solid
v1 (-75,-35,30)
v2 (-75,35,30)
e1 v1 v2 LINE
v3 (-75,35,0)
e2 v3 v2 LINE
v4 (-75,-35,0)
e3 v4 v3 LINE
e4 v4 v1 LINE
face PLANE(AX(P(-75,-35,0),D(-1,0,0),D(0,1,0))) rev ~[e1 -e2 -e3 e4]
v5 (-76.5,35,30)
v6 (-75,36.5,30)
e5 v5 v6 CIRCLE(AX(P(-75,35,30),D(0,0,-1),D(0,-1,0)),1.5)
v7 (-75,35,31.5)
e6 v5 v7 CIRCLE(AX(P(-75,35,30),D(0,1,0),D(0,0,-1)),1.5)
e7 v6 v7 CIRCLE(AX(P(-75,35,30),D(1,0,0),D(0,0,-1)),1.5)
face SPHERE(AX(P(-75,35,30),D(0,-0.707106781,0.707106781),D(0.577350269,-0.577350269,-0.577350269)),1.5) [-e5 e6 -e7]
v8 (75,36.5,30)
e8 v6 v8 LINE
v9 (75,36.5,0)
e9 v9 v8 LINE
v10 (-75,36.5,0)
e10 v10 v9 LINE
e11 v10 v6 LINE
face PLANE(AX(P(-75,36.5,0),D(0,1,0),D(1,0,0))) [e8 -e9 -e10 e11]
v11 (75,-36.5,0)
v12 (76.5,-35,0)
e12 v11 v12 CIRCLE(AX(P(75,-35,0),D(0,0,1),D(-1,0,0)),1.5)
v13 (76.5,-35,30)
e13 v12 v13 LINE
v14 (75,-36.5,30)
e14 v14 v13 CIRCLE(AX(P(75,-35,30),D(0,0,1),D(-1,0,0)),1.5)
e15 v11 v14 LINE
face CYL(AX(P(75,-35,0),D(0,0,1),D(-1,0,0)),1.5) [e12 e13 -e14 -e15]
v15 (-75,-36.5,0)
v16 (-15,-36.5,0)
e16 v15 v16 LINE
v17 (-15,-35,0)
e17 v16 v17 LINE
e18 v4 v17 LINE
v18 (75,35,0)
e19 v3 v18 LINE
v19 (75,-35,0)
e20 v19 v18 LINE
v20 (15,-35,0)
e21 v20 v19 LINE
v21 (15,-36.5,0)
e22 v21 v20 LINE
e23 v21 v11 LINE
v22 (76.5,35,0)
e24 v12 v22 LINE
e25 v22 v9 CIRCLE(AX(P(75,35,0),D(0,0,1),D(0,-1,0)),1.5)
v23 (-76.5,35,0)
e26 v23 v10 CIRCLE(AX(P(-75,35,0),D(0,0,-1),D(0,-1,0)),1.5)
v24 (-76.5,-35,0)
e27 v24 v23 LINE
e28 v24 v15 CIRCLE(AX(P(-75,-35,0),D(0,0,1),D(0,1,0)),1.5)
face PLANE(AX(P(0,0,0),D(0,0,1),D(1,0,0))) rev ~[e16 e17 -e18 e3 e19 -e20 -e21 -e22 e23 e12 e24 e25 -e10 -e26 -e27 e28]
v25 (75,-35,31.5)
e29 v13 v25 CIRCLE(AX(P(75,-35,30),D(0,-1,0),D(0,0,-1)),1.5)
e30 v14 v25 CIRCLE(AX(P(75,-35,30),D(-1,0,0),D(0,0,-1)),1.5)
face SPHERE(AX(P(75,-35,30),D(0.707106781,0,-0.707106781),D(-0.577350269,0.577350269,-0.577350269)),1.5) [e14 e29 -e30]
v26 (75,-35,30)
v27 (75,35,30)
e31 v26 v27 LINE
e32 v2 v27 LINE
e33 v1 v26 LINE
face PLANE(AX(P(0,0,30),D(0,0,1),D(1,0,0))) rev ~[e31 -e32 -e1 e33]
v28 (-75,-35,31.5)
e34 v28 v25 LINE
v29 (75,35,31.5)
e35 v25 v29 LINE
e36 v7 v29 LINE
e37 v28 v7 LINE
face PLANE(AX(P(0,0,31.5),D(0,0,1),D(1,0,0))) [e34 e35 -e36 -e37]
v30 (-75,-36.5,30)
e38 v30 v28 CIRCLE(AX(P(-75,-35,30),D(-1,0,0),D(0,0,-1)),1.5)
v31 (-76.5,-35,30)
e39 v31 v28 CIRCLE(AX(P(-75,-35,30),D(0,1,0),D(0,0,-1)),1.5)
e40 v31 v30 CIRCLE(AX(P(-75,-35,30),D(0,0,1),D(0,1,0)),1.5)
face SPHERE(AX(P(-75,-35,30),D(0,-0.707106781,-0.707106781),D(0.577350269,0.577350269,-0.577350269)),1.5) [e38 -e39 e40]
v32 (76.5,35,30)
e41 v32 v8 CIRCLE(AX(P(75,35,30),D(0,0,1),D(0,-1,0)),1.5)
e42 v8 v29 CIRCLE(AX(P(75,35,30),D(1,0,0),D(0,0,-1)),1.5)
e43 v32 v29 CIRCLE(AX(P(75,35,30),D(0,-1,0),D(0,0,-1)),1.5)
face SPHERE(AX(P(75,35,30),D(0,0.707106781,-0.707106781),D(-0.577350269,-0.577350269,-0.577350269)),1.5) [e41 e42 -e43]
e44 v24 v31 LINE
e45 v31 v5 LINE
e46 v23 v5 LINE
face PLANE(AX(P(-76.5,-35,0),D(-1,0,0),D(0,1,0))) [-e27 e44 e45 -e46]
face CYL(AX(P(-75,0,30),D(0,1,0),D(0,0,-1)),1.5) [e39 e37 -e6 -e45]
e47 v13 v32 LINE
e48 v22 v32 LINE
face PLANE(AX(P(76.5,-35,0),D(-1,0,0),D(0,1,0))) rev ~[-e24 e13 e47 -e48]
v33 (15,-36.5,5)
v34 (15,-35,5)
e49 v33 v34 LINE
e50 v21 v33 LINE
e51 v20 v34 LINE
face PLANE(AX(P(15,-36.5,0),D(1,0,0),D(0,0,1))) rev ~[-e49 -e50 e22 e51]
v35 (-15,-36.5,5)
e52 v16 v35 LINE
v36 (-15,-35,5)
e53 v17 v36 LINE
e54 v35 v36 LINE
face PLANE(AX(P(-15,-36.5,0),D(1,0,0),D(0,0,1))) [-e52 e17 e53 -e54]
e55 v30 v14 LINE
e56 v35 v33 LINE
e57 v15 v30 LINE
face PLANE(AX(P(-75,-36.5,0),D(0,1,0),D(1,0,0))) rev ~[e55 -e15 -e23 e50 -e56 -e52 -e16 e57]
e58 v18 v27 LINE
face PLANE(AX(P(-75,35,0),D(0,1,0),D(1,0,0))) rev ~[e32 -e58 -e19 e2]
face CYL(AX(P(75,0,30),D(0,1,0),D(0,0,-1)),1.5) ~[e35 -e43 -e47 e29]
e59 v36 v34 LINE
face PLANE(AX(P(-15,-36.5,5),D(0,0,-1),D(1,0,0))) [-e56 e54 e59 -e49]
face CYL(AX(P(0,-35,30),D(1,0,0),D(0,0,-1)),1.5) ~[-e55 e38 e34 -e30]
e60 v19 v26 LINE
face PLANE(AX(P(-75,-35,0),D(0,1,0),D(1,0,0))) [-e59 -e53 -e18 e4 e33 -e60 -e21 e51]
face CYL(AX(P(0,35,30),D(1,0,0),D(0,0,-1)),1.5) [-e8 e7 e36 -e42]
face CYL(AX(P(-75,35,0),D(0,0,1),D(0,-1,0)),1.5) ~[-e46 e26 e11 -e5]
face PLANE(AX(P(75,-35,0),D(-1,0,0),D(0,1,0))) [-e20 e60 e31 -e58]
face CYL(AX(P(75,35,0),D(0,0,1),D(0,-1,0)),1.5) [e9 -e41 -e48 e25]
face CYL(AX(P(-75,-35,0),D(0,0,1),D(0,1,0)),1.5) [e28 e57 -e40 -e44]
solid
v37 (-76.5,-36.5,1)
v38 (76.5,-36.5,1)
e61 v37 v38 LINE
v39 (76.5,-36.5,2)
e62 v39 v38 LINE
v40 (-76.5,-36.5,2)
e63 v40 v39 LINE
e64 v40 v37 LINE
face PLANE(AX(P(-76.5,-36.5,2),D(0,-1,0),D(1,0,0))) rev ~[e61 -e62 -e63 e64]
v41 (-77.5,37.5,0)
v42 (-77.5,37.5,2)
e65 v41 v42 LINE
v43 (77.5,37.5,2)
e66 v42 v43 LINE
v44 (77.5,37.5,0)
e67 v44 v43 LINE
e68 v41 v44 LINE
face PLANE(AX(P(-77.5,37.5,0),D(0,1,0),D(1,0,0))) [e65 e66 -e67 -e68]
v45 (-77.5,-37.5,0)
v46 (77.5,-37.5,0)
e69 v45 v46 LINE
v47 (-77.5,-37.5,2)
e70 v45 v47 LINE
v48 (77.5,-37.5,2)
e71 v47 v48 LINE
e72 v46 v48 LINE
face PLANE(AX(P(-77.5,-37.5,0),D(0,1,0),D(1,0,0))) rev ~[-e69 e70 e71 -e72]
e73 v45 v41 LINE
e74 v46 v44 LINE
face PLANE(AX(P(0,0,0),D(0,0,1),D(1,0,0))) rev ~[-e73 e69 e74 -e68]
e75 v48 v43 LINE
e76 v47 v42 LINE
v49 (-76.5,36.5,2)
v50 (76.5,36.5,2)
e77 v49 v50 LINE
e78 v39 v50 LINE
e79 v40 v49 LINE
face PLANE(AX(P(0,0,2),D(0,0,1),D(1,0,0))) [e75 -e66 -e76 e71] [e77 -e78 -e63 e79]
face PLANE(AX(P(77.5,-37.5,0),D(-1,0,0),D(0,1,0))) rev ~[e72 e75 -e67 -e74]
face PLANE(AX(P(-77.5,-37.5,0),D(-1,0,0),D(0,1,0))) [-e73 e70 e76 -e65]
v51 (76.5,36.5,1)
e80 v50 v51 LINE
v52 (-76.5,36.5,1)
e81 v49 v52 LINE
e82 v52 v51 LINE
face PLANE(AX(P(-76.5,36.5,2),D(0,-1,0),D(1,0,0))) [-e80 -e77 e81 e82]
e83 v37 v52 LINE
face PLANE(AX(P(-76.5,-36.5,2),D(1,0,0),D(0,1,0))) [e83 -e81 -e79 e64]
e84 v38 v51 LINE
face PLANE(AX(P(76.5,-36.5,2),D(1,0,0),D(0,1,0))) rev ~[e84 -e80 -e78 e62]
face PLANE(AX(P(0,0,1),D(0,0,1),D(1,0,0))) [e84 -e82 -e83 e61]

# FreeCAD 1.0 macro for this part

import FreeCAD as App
import Part
import Sketcher

V = App.Vector
Q = App.Units.Quantity


def faces_at(feature, points):
    """Names of the faces that lie closest to the given points."""
    faces = feature.Shape.Faces
    near = lambda p: min(range(len(faces)), key=lambda i: faces[i].distToShape(Part.Vertex(*p))[0])
    return sorted({f"Face{near(p) + 1}" for p in points})

doc = App.newDocument("Part")
params = doc.addObject("Spreadsheet::Sheet", "Params")
for row, (alias, value) in enumerate([
    ("sketch1_width", "155 mm"),
    ("sketch1_height", "75 mm"),
    ("pad1_length", "2 mm"),
    ("sketch2_width", "153 mm"),
    ("sketch2_height", "73 mm"),
    ("pocket1_length", "1 mm"),
    ("sketch3_width", "150 mm"),
    ("sketch3_height", "70 mm"),
    ("pad2_length", "30 mm"),
    ("thickness_wall", "1.5 mm"),
    ("sketch4_width", "30 mm"),
    ("sketch4_height", "5 mm"),
    ("pocket2_length", "1.5 mm"),
], start=1):
    params.set(f"A{row}", alias)
    params.set(f"B{row}", "=" + value)
    params.setAlias(f"B{row}", alias)

body = doc.addObject("PartDesign::Body", "Body")

sketch1 = body.newObject("Sketcher::SketchObject", "Sketch")
sketch1.AttachmentSupport = (doc.getObject("XY_Plane"), [""])
sketch1.MapMode = "FlatFace"
sketch1.addGeometry([
    Part.LineSegment(V(-78, 38, 0), V(-78, -38, 0)),
    Part.LineSegment(V(-78, -38, 0), V(78, -38, 0)),
    Part.LineSegment(V(78, -38, 0), V(78, 38, 0)),
    Part.LineSegment(V(78, 38, 0), V(-78, 38, 0)),
], False)
sketch1.addConstraint([
    Sketcher.Constraint("Coincident", 0, 2, 1, 1),
    Sketcher.Constraint("Coincident", 1, 2, 2, 1),
    Sketcher.Constraint("Coincident", 2, 2, 3, 1),
    Sketcher.Constraint("Coincident", 3, 2, 0, 1),
    Sketcher.Constraint("Vertical", 0),
    Sketcher.Constraint("Horizontal", 1),
    Sketcher.Constraint("Vertical", 2),
    Sketcher.Constraint("Horizontal", 3),
    Sketcher.Constraint("Symmetric", 0, 2, 2, 2, -1, 1),
    Sketcher.Constraint("DistanceX", 1, 1, 1, 2, Q("155 mm")),
    Sketcher.Constraint("DistanceY", 0, 2, 0, 1, Q("75 mm")),
])
sketch1.setExpression("Constraints[9]", "Params.sketch1_width")
sketch1.setExpression("Constraints[10]", "Params.sketch1_height")
pad1 = body.newObject("PartDesign::Pad", "Pad")
pad1.Profile = sketch1
pad1.setExpression("Length", "Params.pad1_length")

sketch2 = body.newObject("Sketcher::SketchObject", "Sketch001")
sketch2.AttachmentSupport = (doc.getObject("XY_Plane"), [""])
sketch2.MapMode = "FlatFace"
sketch2.AttachmentOffset = App.Placement(V(0, 0, 2), App.Rotation())
sketch2.addGeometry([
    Part.LineSegment(V(-76, 36, 0), V(-76, -36, 0)),
    Part.LineSegment(V(-76, -36, 0), V(76, -36, 0)),
    Part.LineSegment(V(76, -36, 0), V(76, 36, 0)),
    Part.LineSegment(V(76, 36, 0), V(-76, 36, 0)),
], False)
sketch2.addConstraint([
    Sketcher.Constraint("Coincident", 0, 2, 1, 1),
    Sketcher.Constraint("Coincident", 1, 2, 2, 1),
    Sketcher.Constraint("Coincident", 2, 2, 3, 1),
    Sketcher.Constraint("Coincident", 3, 2, 0, 1),
    Sketcher.Constraint("Vertical", 0),
    Sketcher.Constraint("Horizontal", 1),
    Sketcher.Constraint("Vertical", 2),
    Sketcher.Constraint("Horizontal", 3),
    Sketcher.Constraint("Symmetric", 0, 2, 2, 2, -1, 1),
    Sketcher.Constraint("DistanceX", 1, 1, 1, 2, Q("153 mm")),
    Sketcher.Constraint("DistanceY", 0, 2, 0, 1, Q("73 mm")),
])
sketch2.setExpression("Constraints[9]", "Params.sketch2_width")
sketch2.setExpression("Constraints[10]", "Params.sketch2_height")
pocket1 = body.newObject("PartDesign::Pocket", "Pocket")
pocket1.Profile = sketch2
pocket1.setExpression("Length", "Params.pocket1_length")
body2 = doc.addObject("PartDesign::Body", "Body001")

sketch3 = body2.newObject("Sketcher::SketchObject", "Sketch002")
sketch3.AttachmentSupport = (doc.getObject("XY_Plane001"), [""])
sketch3.MapMode = "FlatFace"
sketch3.addGeometry([
    Part.LineSegment(V(-75, 35, 0), V(-75, -35, 0)),
    Part.LineSegment(V(-75, -35, 0), V(75, -35, 0)),
    Part.LineSegment(V(75, -35, 0), V(75, 35, 0)),
    Part.LineSegment(V(75, 35, 0), V(-75, 35, 0)),
], False)
sketch3.addConstraint([
    Sketcher.Constraint("Coincident", 0, 2, 1, 1),
    Sketcher.Constraint("Coincident", 1, 2, 2, 1),
    Sketcher.Constraint("Coincident", 2, 2, 3, 1),
    Sketcher.Constraint("Coincident", 3, 2, 0, 1),
    Sketcher.Constraint("Vertical", 0),
    Sketcher.Constraint("Horizontal", 1),
    Sketcher.Constraint("Vertical", 2),
    Sketcher.Constraint("Horizontal", 3),
    Sketcher.Constraint("Symmetric", 0, 2, 2, 2, -1, 1),
    Sketcher.Constraint("DistanceX", 1, 1, 1, 2, Q("150 mm")),
    Sketcher.Constraint("DistanceY", 0, 2, 0, 1, Q("70 mm")),
])
sketch3.setExpression("Constraints[9]", "Params.sketch3_width")
sketch3.setExpression("Constraints[10]", "Params.sketch3_height")
pad2 = body2.newObject("PartDesign::Pad", "Pad001")
pad2.Profile = sketch3
pad2.setExpression("Length", "Params.pad2_length")
doc.recompute()

thickness = body2.newObject("PartDesign::Thickness", "Thickness")
thickness.Base = (pad2, faces_at(pad2, [(0, 0, 0)]))
thickness.setExpression("Value", "Params.thickness_wall")
thickness.Reversed = False
thickness.Join = "Arc"

sketch4 = body2.newObject("Sketcher::SketchObject", "Sketch003")
sketch4.AttachmentSupport = (doc.getObject("XZ_Plane001"), [""])
sketch4.MapMode = "FlatFace"
sketch4.AttachmentOffset = App.Placement(V(0, 0, 36.5), App.Rotation())
sketch4.addGeometry([
    Part.LineSegment(V(-15, 5, 0), V(-15, 0, 0)),
    Part.LineSegment(V(-15, 0, 0), V(15, 0, 0)),
    Part.LineSegment(V(15, 0, 0), V(15, 5, 0)),
    Part.LineSegment(V(15, 5, 0), V(-15, 5, 0)),
], False)
sketch4.addConstraint([
    Sketcher.Constraint("Coincident", 0, 2, 1, 1),
    Sketcher.Constraint("Coincident", 1, 2, 2, 1),
    Sketcher.Constraint("Coincident", 2, 2, 3, 1),
    Sketcher.Constraint("Coincident", 3, 2, 0, 1),
    Sketcher.Constraint("Vertical", 0),
    Sketcher.Constraint("Horizontal", 1),
    Sketcher.Constraint("Vertical", 2),
    Sketcher.Constraint("Horizontal", 3),
    Sketcher.Constraint("Symmetric", 0, 2, 1, 2, -1, 1),
    Sketcher.Constraint("DistanceX", 1, 1, 1, 2, Q("30 mm")),
    Sketcher.Constraint("DistanceY", 0, 2, 0, 1, Q("5 mm")),
])
sketch4.setExpression("Constraints[9]", "Params.sketch4_width")
sketch4.setExpression("Constraints[10]", "Params.sketch4_height")
pocket2 = body2.newObject("PartDesign::Pocket", "Pocket001")
pocket2.Profile = sketch4
pocket2.setExpression("Length", "Params.pocket2_length")

doc.recompute()
